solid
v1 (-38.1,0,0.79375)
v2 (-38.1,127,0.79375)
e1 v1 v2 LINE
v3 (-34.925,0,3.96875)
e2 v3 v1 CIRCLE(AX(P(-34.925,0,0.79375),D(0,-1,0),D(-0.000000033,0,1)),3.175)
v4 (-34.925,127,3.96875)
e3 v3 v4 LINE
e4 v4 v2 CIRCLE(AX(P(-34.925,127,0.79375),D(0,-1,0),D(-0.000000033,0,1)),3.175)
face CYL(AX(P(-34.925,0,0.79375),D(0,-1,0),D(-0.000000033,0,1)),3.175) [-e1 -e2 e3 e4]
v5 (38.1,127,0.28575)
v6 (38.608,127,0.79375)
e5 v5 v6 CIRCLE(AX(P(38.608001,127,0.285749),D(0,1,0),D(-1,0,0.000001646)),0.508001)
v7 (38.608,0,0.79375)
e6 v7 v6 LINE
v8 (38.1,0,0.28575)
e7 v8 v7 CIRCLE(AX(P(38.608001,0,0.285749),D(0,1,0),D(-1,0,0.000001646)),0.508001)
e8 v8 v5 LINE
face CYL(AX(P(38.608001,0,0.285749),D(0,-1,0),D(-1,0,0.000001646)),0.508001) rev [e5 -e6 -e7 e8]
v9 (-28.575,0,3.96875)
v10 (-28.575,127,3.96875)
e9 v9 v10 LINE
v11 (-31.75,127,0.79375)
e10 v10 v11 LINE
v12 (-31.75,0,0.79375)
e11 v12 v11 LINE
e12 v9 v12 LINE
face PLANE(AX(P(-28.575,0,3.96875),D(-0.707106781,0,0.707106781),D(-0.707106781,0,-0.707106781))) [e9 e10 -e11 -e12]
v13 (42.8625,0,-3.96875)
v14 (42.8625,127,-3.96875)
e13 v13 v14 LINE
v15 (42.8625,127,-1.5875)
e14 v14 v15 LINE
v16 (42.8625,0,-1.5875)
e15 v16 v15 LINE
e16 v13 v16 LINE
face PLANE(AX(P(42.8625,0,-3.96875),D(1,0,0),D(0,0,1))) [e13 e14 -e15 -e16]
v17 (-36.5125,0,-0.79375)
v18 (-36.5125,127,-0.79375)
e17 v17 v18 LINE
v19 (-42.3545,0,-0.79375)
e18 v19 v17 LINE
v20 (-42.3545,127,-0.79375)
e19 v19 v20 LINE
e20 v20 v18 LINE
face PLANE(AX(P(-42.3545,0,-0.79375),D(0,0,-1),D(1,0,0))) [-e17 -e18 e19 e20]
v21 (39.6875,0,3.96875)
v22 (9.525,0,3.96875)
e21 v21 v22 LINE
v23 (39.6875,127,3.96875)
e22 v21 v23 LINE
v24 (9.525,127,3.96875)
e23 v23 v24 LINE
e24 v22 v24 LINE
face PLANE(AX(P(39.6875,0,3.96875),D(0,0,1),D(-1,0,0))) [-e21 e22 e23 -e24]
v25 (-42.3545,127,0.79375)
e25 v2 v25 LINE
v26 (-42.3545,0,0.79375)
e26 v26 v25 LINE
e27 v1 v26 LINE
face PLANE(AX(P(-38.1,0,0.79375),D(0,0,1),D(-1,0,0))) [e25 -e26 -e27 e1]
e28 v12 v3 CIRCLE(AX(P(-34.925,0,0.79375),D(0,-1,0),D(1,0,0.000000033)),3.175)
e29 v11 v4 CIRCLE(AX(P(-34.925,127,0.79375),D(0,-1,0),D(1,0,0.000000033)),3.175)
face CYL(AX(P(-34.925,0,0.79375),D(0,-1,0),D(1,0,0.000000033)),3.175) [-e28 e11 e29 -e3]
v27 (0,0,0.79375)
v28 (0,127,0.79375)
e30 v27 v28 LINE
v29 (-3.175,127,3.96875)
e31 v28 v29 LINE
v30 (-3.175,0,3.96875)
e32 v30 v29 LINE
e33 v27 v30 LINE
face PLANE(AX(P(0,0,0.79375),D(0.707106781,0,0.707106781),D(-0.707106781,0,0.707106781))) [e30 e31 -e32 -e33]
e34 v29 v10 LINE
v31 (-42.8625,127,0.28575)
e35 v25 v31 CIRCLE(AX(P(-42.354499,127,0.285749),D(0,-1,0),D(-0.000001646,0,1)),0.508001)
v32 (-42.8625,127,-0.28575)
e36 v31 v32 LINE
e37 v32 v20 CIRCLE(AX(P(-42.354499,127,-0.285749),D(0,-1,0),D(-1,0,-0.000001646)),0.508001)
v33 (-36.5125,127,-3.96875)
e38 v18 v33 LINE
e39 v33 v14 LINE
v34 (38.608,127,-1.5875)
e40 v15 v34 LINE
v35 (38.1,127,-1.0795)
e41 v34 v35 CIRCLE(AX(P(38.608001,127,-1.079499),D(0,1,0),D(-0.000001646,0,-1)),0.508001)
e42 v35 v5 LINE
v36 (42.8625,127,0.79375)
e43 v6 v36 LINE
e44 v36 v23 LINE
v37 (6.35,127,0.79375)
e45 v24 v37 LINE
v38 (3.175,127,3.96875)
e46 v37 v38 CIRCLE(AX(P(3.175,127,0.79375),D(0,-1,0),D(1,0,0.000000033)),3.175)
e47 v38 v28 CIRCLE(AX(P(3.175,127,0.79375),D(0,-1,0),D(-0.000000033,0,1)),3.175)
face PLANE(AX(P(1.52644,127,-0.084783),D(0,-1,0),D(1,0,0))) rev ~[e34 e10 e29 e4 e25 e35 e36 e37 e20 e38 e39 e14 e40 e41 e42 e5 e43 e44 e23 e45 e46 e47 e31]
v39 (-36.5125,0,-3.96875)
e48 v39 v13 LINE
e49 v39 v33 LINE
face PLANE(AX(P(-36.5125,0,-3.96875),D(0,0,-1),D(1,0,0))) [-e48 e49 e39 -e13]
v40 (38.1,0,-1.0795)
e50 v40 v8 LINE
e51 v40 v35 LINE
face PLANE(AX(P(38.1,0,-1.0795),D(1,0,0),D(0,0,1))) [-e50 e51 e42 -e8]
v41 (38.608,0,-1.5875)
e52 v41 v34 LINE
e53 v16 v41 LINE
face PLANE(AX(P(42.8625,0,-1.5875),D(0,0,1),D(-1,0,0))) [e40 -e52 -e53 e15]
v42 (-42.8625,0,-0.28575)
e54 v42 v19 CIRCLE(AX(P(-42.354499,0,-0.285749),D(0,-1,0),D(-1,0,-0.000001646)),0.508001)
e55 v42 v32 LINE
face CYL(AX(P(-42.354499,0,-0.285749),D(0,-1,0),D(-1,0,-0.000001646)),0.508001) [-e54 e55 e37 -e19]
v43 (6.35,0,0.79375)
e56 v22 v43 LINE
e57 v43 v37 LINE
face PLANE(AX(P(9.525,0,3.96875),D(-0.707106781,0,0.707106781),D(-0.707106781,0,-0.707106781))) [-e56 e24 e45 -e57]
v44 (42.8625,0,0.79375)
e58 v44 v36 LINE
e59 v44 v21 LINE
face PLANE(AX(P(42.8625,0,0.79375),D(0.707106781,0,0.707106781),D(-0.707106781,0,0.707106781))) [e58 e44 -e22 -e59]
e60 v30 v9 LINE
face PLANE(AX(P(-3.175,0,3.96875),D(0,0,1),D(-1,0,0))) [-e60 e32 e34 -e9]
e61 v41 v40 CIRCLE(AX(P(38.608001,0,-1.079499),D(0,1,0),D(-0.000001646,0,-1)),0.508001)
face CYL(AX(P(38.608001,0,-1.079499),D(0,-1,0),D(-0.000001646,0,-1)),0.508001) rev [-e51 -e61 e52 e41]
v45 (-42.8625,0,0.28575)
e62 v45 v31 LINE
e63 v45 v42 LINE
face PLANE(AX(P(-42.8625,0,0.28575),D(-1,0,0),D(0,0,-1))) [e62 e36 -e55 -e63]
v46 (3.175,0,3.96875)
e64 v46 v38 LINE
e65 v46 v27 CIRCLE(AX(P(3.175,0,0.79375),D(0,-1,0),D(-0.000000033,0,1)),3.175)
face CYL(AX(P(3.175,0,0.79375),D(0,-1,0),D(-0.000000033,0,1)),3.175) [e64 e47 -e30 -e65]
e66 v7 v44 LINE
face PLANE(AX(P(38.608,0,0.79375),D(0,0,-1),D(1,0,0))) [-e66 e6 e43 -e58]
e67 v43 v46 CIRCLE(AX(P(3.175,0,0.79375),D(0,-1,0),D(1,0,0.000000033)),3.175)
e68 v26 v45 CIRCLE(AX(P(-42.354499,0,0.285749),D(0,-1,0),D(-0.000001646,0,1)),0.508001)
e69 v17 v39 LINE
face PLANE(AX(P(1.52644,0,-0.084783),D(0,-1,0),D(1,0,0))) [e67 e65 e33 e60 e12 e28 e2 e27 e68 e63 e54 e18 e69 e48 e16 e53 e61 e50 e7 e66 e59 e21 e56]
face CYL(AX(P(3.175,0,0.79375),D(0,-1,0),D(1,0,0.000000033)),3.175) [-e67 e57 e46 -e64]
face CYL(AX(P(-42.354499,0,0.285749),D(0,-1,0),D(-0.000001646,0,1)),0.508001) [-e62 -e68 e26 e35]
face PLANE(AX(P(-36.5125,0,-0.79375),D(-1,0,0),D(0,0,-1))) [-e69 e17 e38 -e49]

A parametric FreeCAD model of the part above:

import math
import FreeCAD as App
import Part
import Sketcher
from FreeCAD import Vector
Q = App.Units.Quantity

doc = App.newDocument("Part")
body = doc.addObject("PartDesign::Body", "Body")

# Sketch on XZ plane
sketch1 = doc.addObject("Sketcher::SketchObject", "Sketch")
body.addObject(sketch1)
sketch1.AttachmentSupport = (doc.XZ_Plane, [""])
sketch1.MapMode = "FlatFace"
sketch1.addGeometry(Part.LineSegment(Vector(-36.5, -0.8, 0), Vector(-36.5, -4, 0)), False)
sketch1.addGeometry(Part.LineSegment(Vector(-36.5, -4, 0), Vector(42.9, -4, 0)), False)
sketch1.addGeometry(Part.LineSegment(Vector(42.9, -4, 0), Vector(42.9, -1.6, 0)), False)
sketch1.addGeometry(Part.LineSegment(Vector(42.9, -1.6, 0), Vector(38.6, -1.6, 0)), False)
sketch1.addGeometry(Part.ArcOfCircle(Part.Circle(Vector(38.6, -1.1, 0), Vector(0, 0, 1), 0.5), math.radians(-180), math.radians(-90)), False)
sketch1.addGeometry(Part.LineSegment(Vector(38.1, -1.1, 0), Vector(38.1, 0.3, 0)), False)
sketch1.addGeometry(Part.ArcOfCircle(Part.Circle(Vector(38.6, 0.3, 0), Vector(0, 0, 1), 0.5), math.radians(90), math.radians(180)), False)
sketch1.addGeometry(Part.LineSegment(Vector(38.6, 0.8, 0), Vector(42.9, 0.8, 0)), False)
sketch1.addGeometry(Part.LineSegment(Vector(42.9, 0.8, 0), Vector(39.7, 4, 0)), False)
sketch1.addGeometry(Part.LineSegment(Vector(39.7, 4, 0), Vector(9.5, 4, 0)), False)
sketch1.addGeometry(Part.LineSegment(Vector(9.5, 4, 0), Vector(6.3, 0.8, 0)), False)
sketch1.addGeometry(Part.ArcOfCircle(Part.Circle(Vector(3.2, 0.8, 0), Vector(0, 0, 1), 3.2), math.radians(0), math.radians(90)), False)
sketch1.addGeometry(Part.ArcOfCircle(Part.Circle(Vector(3.2, 0.8, 0), Vector(0, 0, 1), 3.2), math.radians(90), math.radians(180)), False)
sketch1.addGeometry(Part.LineSegment(Vector(0, 0.8, 0), Vector(-3.2, 4, 0)), False)
sketch1.addGeometry(Part.LineSegment(Vector(-3.2, 4, 0), Vector(-28.6, 4, 0)), False)
sketch1.addGeometry(Part.LineSegment(Vector(-28.6, 4, 0), Vector(-31.8, 0.8, 0)), False)
sketch1.addGeometry(Part.ArcOfCircle(Part.Circle(Vector(-34.9, 0.8, 0), Vector(0, 0, 1), 3.2), math.radians(0), math.radians(90)), False)
sketch1.addGeometry(Part.ArcOfCircle(Part.Circle(Vector(-34.9, 0.8, 0), Vector(0, 0, 1), 3.2), math.radians(90), math.radians(180)), False)
sketch1.addGeometry(Part.LineSegment(Vector(-38.1, 0.8, 0), Vector(-42.4, 0.8, 0)), False)
sketch1.addGeometry(Part.ArcOfCircle(Part.Circle(Vector(-42.4, 0.3, 0), Vector(0, 0, 1), 0.5), math.radians(90), math.radians(180)), False)
sketch1.addGeometry(Part.LineSegment(Vector(-42.9, 0.3, 0), Vector(-42.9, -0.3, 0)), False)
sketch1.addGeometry(Part.ArcOfCircle(Part.Circle(Vector(-42.4, -0.3, 0), Vector(0, 0, 1), 0.5), math.radians(-180), math.radians(-90)), False)
sketch1.addGeometry(Part.LineSegment(Vector(-42.4, -0.8, 0), Vector(-36.5, -0.8, 0)), False)
sketch1.addConstraint(Sketcher.Constraint("Coincident", 0, 2, 1, 1))
sketch1.addConstraint(Sketcher.Constraint("Coincident", 1, 2, 2, 1))
sketch1.addConstraint(Sketcher.Constraint("Coincident", 2, 2, 3, 1))
sketch1.addConstraint(Sketcher.Constraint("Tangent", 3, 2, 4, 2))
sketch1.addConstraint(Sketcher.Constraint("Tangent", 4, 1, 5, 1))
sketch1.addConstraint(Sketcher.Constraint("Tangent", 5, 2, 6, 2))
sketch1.addConstraint(Sketcher.Constraint("Tangent", 6, 1, 7, 1))
sketch1.addConstraint(Sketcher.Constraint("Coincident", 7, 2, 8, 1))
sketch1.addConstraint(Sketcher.Constraint("Coincident", 8, 2, 9, 1))
sketch1.addConstraint(Sketcher.Constraint("Coincident", 9, 2, 10, 1))
sketch1.addConstraint(Sketcher.Constraint("Coincident", 10, 2, 11, 1))
sketch1.addConstraint(Sketcher.Constraint("Tangent", 11, 2, 12, 1))
sketch1.addConstraint(Sketcher.Constraint("Coincident", 12, 2, 13, 1))
sketch1.addConstraint(Sketcher.Constraint("Coincident", 13, 2, 14, 1))
sketch1.addConstraint(Sketcher.Constraint("Coincident", 14, 2, 15, 1))
sketch1.addConstraint(Sketcher.Constraint("Coincident", 15, 2, 16, 1))
sketch1.addConstraint(Sketcher.Constraint("Tangent", 16, 2, 17, 1))
sketch1.addConstraint(Sketcher.Constraint("Coincident", 17, 2, 18, 1))
sketch1.addConstraint(Sketcher.Constraint("Tangent", 18, 2, 19, 1))
sketch1.addConstraint(Sketcher.Constraint("Tangent", 19, 2, 20, 1))
sketch1.addConstraint(Sketcher.Constraint("Tangent", 20, 2, 21, 1))
sketch1.addConstraint(Sketcher.Constraint("Tangent", 21, 2, 22, 1))
sketch1.addConstraint(Sketcher.Constraint("Coincident", 22, 2, 0, 1))
sketch1.addConstraint(Sketcher.Constraint("Vertical", 0))
sketch1.addConstraint(Sketcher.Constraint("Horizontal", 1))
sketch1.addConstraint(Sketcher.Constraint("Vertical", 2))
sketch1.addConstraint(Sketcher.Constraint("Horizontal", 3))
sketch1.addConstraint(Sketcher.Constraint("Vertical", 5))
sketch1.addConstraint(Sketcher.Constraint("Horizontal", 7))
sketch1.addConstraint(Sketcher.Constraint("Horizontal", 9))
sketch1.addConstraint(Sketcher.Constraint("Horizontal", 14))
sketch1.addConstraint(Sketcher.Constraint("Horizontal", 18))
sketch1.addConstraint(Sketcher.Constraint("Vertical", 20))
sketch1.addConstraint(Sketcher.Constraint("Horizontal", 22))
sketch1.addConstraint(Sketcher.Constraint("Equal", 4, 6))
sketch1.addConstraint(Sketcher.Constraint("Equal", 11, 12))
sketch1.addConstraint(Sketcher.Constraint("Equal", 12, 16))
sketch1.addConstraint(Sketcher.Constraint("Equal", 16, 17))
sketch1.addConstraint(Sketcher.Constraint("Equal", 6, 19))
sketch1.addConstraint(Sketcher.Constraint("Equal", 19, 21))
sketch1.addConstraint(Sketcher.Constraint("Symmetric", 11, 2, 13, 2, -2))
sketch1.addConstraint(Sketcher.Constraint("PointOnObject", 12, 2, -2))
sketch1.addConstraint(Sketcher.Constraint("Perpendicular", 8, 10))
sketch1.addConstraint(Sketcher.Constraint("Perpendicular", 10, 13))
sketch1.addConstraint(Sketcher.Constraint("Perpendicular", 13, 15))
sketch1.addConstraint(Sketcher.Constraint("Horizontal", 12, 3, 16, 3))
sketch1.addConstraint(Sketcher.Constraint("Horizontal", 6, 3, 19, 3))
sketch1.addConstraint(Sketcher.Constraint("Horizontal", 17, 3, 6, 1))
sketch1.addConstraint(Sketcher.Constraint("Horizontal", 7, 2, 10, 2))
sketch1.addConstraint(Sketcher.Constraint("Horizontal", 9, 2, 11, 2))
sketch1.addConstraint(Sketcher.Constraint("Horizontal", 10, 2, 12, 2))
sketch1.addConstraint(Sketcher.Constraint("Horizontal", 12, 2, 15, 2))
sketch1.addConstraint(Sketcher.Constraint("Vertical", 2, 2, 7, 2))
sketch1.addConstraint(Sketcher.Constraint("Vertical", 12, 3, 11, 2))
sketch1.addConstraint(Sketcher.Constraint("Vertical", 17, 3, 16, 2))
sketch1.addConstraint(Sketcher.Constraint("Equal", 7, 18))
sketch1.addConstraint(Sketcher.Constraint("DistanceX", 14, 2, 14, 1, Q("1 in")))
sketch1.addConstraint(Sketcher.Constraint("Radius", 4, Q("0.02 in")))
sketch1.addConstraint(Sketcher.Constraint("Radius", 11, Q("0.125 in")))
sketch1.addConstraint(Sketcher.Constraint("DistanceX", 22, 1, 22, 2, Q("0.23 in")))
sketch1.addConstraint(Sketcher.Constraint("DistanceX", -1, 1, 4, 1, Q("1.5 in")))
sketch1.addConstraint(Sketcher.Constraint("DistanceX", 1, 1, 1, 2, Q("3.125 in")))
sketch1.addConstraint(Sketcher.Constraint("DistanceY", 0, 2, 0, 1, Q("0.125 in")))
sketch1.addConstraint(Sketcher.Constraint("DistanceY", 2, 1, 2, 2, Q("0.09375 in")))
sketch1.addConstraint(Sketcher.Constraint("DistanceY", 20, 2, 20, 1, Q("0.0225 in")))
sketch1.addConstraint(Sketcher.Constraint("DistanceY", -1, 1, 11, 3, Q("0.03125 in")))
pad1 = doc.addObject("PartDesign::Pad", "Pad")
body.addObject(pad1)
pad1.Profile = sketch1
pad1.Length = Q("5 in")
pad1.Reversed = True

doc.recompute()
